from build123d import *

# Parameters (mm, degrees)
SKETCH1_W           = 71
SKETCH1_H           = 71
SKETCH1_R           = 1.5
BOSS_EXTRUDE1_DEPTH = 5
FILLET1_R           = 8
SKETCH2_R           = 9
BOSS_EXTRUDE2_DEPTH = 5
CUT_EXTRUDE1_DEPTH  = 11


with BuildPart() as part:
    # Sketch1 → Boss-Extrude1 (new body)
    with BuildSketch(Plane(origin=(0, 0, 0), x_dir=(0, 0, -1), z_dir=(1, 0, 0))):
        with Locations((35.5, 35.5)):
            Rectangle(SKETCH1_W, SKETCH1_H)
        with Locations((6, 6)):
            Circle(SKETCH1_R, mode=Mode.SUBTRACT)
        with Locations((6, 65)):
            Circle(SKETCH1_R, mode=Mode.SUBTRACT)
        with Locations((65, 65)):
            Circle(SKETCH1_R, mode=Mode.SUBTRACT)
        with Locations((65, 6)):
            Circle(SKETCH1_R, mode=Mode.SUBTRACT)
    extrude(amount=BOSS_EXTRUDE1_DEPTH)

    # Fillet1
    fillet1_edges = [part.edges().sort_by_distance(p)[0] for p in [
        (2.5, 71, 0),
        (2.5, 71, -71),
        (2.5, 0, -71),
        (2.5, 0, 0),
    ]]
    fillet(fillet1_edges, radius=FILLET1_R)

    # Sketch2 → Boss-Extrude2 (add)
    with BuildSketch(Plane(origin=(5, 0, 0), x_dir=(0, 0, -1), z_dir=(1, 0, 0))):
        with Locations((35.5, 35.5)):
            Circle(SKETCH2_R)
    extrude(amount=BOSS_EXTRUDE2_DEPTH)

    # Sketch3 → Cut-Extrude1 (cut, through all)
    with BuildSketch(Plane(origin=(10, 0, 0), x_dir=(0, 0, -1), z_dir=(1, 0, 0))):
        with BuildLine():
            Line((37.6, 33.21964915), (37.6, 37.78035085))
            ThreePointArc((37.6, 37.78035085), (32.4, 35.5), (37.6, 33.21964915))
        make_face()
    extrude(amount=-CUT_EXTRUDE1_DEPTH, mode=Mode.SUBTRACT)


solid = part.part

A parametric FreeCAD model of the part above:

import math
import FreeCAD as App
import Part
import Sketcher
Q = App.Units.Quantity


def edges_at(feature, points):
    """Names of the edges that pass closest to the given points."""
    edges = feature.Shape.Edges
    near = lambda p: min(range(len(edges)), key=lambda i: edges[i].distToShape(Part.Vertex(*p))[0])
    return sorted({f"Edge{near(p) + 1}" for p in points})


def add_polygon(sketch, points):
    """Adds a closed chain of lines whose ends are joined by coincident constraints."""
    first, n = sketch.GeometryCount, len(points)
    for a, b in zip(points, points[1:] + points[:1]):
        sketch.addGeometry(Part.LineSegment(App.Vector(*a, 0), App.Vector(*b, 0)), False)
    for i in range(n):
        sketch.addConstraint(Sketcher.Constraint("Coincident", first + i, 2, first + (i + 1) % n, 1))

doc = App.newDocument("Part")
body = doc.addObject("PartDesign::Body", "Body")

sketch1 = body.newObject("Sketcher::SketchObject", "Sketch")
sketch1.AttachmentSupport = (doc.getObject("YZ_Plane"), [""])
sketch1.MapMode = "FlatFace"
add_polygon(sketch1, [(71, 0), (0, 0), (0, -71), (71, -71)])
sketch1.addGeometry(Part.Circle(App.Vector(6, -6, 0), App.Vector(0, 0, 1), 1.5), False)
sketch1.addGeometry(Part.Circle(App.Vector(6, -65, 0), App.Vector(0, 0, 1), 1.5), False)
sketch1.addGeometry(Part.Circle(App.Vector(65, -6, 0), App.Vector(0, 0, 1), 1.5), False)
sketch1.addGeometry(Part.Circle(App.Vector(65, -65, 0), App.Vector(0, 0, 1), 1.5), False)
sketch1.addConstraint(Sketcher.Constraint("Horizontal", 0))
sketch1.addConstraint(Sketcher.Constraint("Vertical", 1))
sketch1.addConstraint(Sketcher.Constraint("Horizontal", 2))
sketch1.addConstraint(Sketcher.Constraint("Vertical", 3))
sketch1.addConstraint(Sketcher.Constraint("Coincident", 0, 2, -1, 1))
sketch1.addConstraint(Sketcher.Constraint("Equal", 4, 5))
sketch1.addConstraint(Sketcher.Constraint("Equal", 5, 6))
sketch1.addConstraint(Sketcher.Constraint("Equal", 6, 7))
sketch1.addConstraint(Sketcher.Constraint("Horizontal", 4, 3, 6, 3))
sketch1.addConstraint(Sketcher.Constraint("Horizontal", 5, 3, 7, 3))
sketch1.addConstraint(Sketcher.Constraint("Vertical", 4, 3, 5, 3))
sketch1.addConstraint(Sketcher.Constraint("Vertical", 6, 3, 7, 3))
sketch1.addConstraint(Sketcher.Constraint("Equal", 2, 1))
sketch1.addConstraint(Sketcher.Constraint("Diameter", 4, Q("3 mm")))
sketch1.addConstraint(Sketcher.Constraint("DistanceX", 0, 2, 0, 1, Q("71 mm")))
sketch1.addConstraint(Sketcher.Constraint("DistanceX", -1, 1, 4, 3, Q("6 mm")))
sketch1.addConstraint(Sketcher.Constraint("DistanceY", 4, 3, -1, 1, Q("6 mm")))
sketch1.addConstraint(Sketcher.Constraint("DistanceY", 5, 3, -1, 1, Q("65 mm")))
sketch1.addConstraint(Sketcher.Constraint("DistanceX", -1, 1, 6, 3, Q("65 mm")))
pad1 = body.newObject("PartDesign::Pad", "Pad")
pad1.Profile = sketch1
pad1.Length = 5
doc.recompute()

fillet = body.newObject("PartDesign::Fillet", "Fillet")
fillet.Base = (pad1, edges_at(pad1, [
    (2.5, 71, 0),
    (2.5, 71, -71),
    (2.5, 0, -71),
    (2.5, 0, 0),
]))
fillet.Radius = 8

sketch2 = body.newObject("Sketcher::SketchObject", "Sketch001")
sketch2.AttachmentSupport = (doc.getObject("YZ_Plane"), [""])
sketch2.MapMode = "FlatFace"
sketch2.AttachmentOffset = App.Placement(App.Vector(0, 0, 5), App.Rotation())
sketch2.addGeometry(Part.Circle(App.Vector(36, -36, 0), App.Vector(0, 0, 1), 9), False)
sketch2.addConstraint(Sketcher.Constraint("Diameter", 0, Q("18 mm")))
sketch2.addConstraint(Sketcher.Constraint("DistanceX", -1, 1, 0, 3, Q("35.5 mm")))
sketch2.addConstraint(Sketcher.Constraint("DistanceY", 0, 3, -1, 1, Q("35.5 mm")))
pad2 = body.newObject("PartDesign::Pad", "Pad001")
pad2.Profile = sketch2
pad2.Length = 5

sketch3 = body.newObject("Sketcher::SketchObject", "Sketch002")
sketch3.AttachmentSupport = (doc.getObject("YZ_Plane"), [""])
sketch3.MapMode = "FlatFace"
sketch3.AttachmentOffset = App.Placement(App.Vector(0, 0, 10), App.Rotation())
sketch3.addGeometry(Part.LineSegment(App.Vector(33.2, -37.6, 0), App.Vector(37.8, -37.6, 0)), False)
sketch3.addGeometry(Part.ArcOfCircle(Part.Circle(App.Vector(35.5, -35.5, 0), App.Vector(0, 0, 1), 3.1), math.radians(-43), math.radians(223)), False)
sketch3.addConstraint(Sketcher.Constraint("Coincident", 0, 1, 1, 2))
sketch3.addConstraint(Sketcher.Constraint("Coincident", 1, 1, 0, 2))
sketch3.addConstraint(Sketcher.Constraint("Horizontal", 0))
sketch3.addConstraint(Sketcher.Constraint("Radius", 1, Q("3.1 mm")))
sketch3.addConstraint(Sketcher.Constraint("DistanceX", -1, 1, 1, 3, Q("35.5 mm")))
sketch3.addConstraint(Sketcher.Constraint("DistanceY", 1, 3, -1, 1, Q("35.5 mm")))
sketch3.addConstraint(Sketcher.Constraint("DistanceY", 0, 1, -1, 1, Q("37.6 mm")))
pocket1 = body.newObject("PartDesign::Pocket", "Pocket")
pocket1.Profile = sketch3
pocket1.Type = "ThroughAll"

doc.recompute()
